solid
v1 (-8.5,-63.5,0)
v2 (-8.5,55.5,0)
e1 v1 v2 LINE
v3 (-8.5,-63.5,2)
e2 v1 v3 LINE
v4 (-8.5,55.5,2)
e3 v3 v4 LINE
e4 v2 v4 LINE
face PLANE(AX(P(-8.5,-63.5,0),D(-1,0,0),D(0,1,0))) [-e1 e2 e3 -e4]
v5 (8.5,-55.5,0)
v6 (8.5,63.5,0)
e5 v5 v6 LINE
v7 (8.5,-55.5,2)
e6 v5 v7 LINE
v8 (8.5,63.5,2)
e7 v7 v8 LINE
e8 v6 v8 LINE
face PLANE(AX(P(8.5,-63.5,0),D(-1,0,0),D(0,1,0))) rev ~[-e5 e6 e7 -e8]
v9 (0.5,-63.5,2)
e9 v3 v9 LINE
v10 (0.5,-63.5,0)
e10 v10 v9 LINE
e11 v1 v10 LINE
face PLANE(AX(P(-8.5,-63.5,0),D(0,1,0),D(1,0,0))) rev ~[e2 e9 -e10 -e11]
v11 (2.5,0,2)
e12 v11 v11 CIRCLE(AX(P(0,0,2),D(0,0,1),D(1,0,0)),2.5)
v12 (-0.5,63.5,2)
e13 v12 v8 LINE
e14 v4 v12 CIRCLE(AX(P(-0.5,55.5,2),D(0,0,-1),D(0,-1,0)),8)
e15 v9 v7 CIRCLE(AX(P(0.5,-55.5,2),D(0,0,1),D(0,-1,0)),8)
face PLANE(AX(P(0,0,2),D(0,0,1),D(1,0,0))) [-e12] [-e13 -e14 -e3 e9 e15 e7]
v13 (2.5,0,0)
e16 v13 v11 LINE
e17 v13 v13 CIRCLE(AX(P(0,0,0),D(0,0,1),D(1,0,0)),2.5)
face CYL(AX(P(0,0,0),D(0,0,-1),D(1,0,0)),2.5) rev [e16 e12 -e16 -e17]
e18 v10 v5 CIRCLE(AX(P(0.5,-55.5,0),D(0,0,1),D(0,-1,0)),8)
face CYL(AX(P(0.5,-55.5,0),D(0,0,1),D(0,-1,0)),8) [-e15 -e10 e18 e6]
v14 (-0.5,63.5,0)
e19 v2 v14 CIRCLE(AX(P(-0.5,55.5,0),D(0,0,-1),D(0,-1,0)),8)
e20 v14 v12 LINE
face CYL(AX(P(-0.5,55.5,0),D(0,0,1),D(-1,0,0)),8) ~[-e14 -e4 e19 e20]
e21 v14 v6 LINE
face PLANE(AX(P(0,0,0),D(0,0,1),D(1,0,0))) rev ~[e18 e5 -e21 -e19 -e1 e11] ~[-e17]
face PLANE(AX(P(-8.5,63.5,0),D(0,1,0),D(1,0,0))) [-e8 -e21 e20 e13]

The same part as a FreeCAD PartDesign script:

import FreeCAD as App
import Part
import Sketcher
from FreeCAD import Vector


def edges_at(feature, points):
    """Names of the edges that pass closest to the given points."""
    edges = feature.Shape.Edges
    near = lambda p: min(range(len(edges)), key=lambda i: edges[i].distToShape(Part.Vertex(*p))[0])
    return sorted({f"Edge{near(p) + 1}" for p in points})


def add_polygon(sketch, points):
    """Adds a closed chain of lines whose ends are joined by coincident constraints."""
    first, n = sketch.GeometryCount, len(points)
    for a, b in zip(points, points[1:] + points[:1]):
        sketch.addGeometry(Part.LineSegment(App.Vector(*a, 0), App.Vector(*b, 0)), False)
    for i in range(n):
        sketch.addConstraint(Sketcher.Constraint("Coincident", first + i, 2, first + (i + 1) % n, 1))

doc = App.newDocument("Part")
body = doc.addObject("PartDesign::Body", "Body")

sketch1 = doc.addObject("Sketcher::SketchObject", "Sketch")
body.addObject(sketch1)
sketch1.AttachmentSupport = (doc.XY_Plane, [""])
sketch1.MapMode = "FlatFace"
add_polygon(sketch1, [(-8.5, 63.5), (-8.5, -63.5), (8.5, -63.5), (8.5, 63.5)])
sketch1.addGeometry(Part.Circle(Vector(0, 0, 0), Vector(0, 0, 1), 2.5), False)
sketch1.addConstraint([
    Sketcher.Constraint("Vertical", 0),
    Sketcher.Constraint("Horizontal", 1),
    Sketcher.Constraint("Vertical", 2),
    Sketcher.Constraint("Horizontal", 3),
    Sketcher.Constraint("Coincident", 4, 3, -1, 1),
    Sketcher.Constraint("Symmetric", 0, 2, 2, 2, -1, 1),
    Sketcher.Constraint("Diameter", 4, 5.0),
    Sketcher.Constraint("DistanceX", 1, 1, 1, 2, 17.0),
    Sketcher.Constraint("DistanceY", 0, 2, 0, 1, 127.0),
])
pad1 = doc.addObject("PartDesign::Pad", "Pad")
body.addObject(pad1)
pad1.Profile = sketch1
pad1.Length = 2
doc.recompute()

fillet = doc.addObject("PartDesign::Fillet", "Fillet")
body.addObject(fillet)
fillet.Base = (pad1, edges_at(pad1, [(-8.5, 63.5, 1), (8.5, -63.5, 1)]))
fillet.Radius = 8

doc.recompute()
